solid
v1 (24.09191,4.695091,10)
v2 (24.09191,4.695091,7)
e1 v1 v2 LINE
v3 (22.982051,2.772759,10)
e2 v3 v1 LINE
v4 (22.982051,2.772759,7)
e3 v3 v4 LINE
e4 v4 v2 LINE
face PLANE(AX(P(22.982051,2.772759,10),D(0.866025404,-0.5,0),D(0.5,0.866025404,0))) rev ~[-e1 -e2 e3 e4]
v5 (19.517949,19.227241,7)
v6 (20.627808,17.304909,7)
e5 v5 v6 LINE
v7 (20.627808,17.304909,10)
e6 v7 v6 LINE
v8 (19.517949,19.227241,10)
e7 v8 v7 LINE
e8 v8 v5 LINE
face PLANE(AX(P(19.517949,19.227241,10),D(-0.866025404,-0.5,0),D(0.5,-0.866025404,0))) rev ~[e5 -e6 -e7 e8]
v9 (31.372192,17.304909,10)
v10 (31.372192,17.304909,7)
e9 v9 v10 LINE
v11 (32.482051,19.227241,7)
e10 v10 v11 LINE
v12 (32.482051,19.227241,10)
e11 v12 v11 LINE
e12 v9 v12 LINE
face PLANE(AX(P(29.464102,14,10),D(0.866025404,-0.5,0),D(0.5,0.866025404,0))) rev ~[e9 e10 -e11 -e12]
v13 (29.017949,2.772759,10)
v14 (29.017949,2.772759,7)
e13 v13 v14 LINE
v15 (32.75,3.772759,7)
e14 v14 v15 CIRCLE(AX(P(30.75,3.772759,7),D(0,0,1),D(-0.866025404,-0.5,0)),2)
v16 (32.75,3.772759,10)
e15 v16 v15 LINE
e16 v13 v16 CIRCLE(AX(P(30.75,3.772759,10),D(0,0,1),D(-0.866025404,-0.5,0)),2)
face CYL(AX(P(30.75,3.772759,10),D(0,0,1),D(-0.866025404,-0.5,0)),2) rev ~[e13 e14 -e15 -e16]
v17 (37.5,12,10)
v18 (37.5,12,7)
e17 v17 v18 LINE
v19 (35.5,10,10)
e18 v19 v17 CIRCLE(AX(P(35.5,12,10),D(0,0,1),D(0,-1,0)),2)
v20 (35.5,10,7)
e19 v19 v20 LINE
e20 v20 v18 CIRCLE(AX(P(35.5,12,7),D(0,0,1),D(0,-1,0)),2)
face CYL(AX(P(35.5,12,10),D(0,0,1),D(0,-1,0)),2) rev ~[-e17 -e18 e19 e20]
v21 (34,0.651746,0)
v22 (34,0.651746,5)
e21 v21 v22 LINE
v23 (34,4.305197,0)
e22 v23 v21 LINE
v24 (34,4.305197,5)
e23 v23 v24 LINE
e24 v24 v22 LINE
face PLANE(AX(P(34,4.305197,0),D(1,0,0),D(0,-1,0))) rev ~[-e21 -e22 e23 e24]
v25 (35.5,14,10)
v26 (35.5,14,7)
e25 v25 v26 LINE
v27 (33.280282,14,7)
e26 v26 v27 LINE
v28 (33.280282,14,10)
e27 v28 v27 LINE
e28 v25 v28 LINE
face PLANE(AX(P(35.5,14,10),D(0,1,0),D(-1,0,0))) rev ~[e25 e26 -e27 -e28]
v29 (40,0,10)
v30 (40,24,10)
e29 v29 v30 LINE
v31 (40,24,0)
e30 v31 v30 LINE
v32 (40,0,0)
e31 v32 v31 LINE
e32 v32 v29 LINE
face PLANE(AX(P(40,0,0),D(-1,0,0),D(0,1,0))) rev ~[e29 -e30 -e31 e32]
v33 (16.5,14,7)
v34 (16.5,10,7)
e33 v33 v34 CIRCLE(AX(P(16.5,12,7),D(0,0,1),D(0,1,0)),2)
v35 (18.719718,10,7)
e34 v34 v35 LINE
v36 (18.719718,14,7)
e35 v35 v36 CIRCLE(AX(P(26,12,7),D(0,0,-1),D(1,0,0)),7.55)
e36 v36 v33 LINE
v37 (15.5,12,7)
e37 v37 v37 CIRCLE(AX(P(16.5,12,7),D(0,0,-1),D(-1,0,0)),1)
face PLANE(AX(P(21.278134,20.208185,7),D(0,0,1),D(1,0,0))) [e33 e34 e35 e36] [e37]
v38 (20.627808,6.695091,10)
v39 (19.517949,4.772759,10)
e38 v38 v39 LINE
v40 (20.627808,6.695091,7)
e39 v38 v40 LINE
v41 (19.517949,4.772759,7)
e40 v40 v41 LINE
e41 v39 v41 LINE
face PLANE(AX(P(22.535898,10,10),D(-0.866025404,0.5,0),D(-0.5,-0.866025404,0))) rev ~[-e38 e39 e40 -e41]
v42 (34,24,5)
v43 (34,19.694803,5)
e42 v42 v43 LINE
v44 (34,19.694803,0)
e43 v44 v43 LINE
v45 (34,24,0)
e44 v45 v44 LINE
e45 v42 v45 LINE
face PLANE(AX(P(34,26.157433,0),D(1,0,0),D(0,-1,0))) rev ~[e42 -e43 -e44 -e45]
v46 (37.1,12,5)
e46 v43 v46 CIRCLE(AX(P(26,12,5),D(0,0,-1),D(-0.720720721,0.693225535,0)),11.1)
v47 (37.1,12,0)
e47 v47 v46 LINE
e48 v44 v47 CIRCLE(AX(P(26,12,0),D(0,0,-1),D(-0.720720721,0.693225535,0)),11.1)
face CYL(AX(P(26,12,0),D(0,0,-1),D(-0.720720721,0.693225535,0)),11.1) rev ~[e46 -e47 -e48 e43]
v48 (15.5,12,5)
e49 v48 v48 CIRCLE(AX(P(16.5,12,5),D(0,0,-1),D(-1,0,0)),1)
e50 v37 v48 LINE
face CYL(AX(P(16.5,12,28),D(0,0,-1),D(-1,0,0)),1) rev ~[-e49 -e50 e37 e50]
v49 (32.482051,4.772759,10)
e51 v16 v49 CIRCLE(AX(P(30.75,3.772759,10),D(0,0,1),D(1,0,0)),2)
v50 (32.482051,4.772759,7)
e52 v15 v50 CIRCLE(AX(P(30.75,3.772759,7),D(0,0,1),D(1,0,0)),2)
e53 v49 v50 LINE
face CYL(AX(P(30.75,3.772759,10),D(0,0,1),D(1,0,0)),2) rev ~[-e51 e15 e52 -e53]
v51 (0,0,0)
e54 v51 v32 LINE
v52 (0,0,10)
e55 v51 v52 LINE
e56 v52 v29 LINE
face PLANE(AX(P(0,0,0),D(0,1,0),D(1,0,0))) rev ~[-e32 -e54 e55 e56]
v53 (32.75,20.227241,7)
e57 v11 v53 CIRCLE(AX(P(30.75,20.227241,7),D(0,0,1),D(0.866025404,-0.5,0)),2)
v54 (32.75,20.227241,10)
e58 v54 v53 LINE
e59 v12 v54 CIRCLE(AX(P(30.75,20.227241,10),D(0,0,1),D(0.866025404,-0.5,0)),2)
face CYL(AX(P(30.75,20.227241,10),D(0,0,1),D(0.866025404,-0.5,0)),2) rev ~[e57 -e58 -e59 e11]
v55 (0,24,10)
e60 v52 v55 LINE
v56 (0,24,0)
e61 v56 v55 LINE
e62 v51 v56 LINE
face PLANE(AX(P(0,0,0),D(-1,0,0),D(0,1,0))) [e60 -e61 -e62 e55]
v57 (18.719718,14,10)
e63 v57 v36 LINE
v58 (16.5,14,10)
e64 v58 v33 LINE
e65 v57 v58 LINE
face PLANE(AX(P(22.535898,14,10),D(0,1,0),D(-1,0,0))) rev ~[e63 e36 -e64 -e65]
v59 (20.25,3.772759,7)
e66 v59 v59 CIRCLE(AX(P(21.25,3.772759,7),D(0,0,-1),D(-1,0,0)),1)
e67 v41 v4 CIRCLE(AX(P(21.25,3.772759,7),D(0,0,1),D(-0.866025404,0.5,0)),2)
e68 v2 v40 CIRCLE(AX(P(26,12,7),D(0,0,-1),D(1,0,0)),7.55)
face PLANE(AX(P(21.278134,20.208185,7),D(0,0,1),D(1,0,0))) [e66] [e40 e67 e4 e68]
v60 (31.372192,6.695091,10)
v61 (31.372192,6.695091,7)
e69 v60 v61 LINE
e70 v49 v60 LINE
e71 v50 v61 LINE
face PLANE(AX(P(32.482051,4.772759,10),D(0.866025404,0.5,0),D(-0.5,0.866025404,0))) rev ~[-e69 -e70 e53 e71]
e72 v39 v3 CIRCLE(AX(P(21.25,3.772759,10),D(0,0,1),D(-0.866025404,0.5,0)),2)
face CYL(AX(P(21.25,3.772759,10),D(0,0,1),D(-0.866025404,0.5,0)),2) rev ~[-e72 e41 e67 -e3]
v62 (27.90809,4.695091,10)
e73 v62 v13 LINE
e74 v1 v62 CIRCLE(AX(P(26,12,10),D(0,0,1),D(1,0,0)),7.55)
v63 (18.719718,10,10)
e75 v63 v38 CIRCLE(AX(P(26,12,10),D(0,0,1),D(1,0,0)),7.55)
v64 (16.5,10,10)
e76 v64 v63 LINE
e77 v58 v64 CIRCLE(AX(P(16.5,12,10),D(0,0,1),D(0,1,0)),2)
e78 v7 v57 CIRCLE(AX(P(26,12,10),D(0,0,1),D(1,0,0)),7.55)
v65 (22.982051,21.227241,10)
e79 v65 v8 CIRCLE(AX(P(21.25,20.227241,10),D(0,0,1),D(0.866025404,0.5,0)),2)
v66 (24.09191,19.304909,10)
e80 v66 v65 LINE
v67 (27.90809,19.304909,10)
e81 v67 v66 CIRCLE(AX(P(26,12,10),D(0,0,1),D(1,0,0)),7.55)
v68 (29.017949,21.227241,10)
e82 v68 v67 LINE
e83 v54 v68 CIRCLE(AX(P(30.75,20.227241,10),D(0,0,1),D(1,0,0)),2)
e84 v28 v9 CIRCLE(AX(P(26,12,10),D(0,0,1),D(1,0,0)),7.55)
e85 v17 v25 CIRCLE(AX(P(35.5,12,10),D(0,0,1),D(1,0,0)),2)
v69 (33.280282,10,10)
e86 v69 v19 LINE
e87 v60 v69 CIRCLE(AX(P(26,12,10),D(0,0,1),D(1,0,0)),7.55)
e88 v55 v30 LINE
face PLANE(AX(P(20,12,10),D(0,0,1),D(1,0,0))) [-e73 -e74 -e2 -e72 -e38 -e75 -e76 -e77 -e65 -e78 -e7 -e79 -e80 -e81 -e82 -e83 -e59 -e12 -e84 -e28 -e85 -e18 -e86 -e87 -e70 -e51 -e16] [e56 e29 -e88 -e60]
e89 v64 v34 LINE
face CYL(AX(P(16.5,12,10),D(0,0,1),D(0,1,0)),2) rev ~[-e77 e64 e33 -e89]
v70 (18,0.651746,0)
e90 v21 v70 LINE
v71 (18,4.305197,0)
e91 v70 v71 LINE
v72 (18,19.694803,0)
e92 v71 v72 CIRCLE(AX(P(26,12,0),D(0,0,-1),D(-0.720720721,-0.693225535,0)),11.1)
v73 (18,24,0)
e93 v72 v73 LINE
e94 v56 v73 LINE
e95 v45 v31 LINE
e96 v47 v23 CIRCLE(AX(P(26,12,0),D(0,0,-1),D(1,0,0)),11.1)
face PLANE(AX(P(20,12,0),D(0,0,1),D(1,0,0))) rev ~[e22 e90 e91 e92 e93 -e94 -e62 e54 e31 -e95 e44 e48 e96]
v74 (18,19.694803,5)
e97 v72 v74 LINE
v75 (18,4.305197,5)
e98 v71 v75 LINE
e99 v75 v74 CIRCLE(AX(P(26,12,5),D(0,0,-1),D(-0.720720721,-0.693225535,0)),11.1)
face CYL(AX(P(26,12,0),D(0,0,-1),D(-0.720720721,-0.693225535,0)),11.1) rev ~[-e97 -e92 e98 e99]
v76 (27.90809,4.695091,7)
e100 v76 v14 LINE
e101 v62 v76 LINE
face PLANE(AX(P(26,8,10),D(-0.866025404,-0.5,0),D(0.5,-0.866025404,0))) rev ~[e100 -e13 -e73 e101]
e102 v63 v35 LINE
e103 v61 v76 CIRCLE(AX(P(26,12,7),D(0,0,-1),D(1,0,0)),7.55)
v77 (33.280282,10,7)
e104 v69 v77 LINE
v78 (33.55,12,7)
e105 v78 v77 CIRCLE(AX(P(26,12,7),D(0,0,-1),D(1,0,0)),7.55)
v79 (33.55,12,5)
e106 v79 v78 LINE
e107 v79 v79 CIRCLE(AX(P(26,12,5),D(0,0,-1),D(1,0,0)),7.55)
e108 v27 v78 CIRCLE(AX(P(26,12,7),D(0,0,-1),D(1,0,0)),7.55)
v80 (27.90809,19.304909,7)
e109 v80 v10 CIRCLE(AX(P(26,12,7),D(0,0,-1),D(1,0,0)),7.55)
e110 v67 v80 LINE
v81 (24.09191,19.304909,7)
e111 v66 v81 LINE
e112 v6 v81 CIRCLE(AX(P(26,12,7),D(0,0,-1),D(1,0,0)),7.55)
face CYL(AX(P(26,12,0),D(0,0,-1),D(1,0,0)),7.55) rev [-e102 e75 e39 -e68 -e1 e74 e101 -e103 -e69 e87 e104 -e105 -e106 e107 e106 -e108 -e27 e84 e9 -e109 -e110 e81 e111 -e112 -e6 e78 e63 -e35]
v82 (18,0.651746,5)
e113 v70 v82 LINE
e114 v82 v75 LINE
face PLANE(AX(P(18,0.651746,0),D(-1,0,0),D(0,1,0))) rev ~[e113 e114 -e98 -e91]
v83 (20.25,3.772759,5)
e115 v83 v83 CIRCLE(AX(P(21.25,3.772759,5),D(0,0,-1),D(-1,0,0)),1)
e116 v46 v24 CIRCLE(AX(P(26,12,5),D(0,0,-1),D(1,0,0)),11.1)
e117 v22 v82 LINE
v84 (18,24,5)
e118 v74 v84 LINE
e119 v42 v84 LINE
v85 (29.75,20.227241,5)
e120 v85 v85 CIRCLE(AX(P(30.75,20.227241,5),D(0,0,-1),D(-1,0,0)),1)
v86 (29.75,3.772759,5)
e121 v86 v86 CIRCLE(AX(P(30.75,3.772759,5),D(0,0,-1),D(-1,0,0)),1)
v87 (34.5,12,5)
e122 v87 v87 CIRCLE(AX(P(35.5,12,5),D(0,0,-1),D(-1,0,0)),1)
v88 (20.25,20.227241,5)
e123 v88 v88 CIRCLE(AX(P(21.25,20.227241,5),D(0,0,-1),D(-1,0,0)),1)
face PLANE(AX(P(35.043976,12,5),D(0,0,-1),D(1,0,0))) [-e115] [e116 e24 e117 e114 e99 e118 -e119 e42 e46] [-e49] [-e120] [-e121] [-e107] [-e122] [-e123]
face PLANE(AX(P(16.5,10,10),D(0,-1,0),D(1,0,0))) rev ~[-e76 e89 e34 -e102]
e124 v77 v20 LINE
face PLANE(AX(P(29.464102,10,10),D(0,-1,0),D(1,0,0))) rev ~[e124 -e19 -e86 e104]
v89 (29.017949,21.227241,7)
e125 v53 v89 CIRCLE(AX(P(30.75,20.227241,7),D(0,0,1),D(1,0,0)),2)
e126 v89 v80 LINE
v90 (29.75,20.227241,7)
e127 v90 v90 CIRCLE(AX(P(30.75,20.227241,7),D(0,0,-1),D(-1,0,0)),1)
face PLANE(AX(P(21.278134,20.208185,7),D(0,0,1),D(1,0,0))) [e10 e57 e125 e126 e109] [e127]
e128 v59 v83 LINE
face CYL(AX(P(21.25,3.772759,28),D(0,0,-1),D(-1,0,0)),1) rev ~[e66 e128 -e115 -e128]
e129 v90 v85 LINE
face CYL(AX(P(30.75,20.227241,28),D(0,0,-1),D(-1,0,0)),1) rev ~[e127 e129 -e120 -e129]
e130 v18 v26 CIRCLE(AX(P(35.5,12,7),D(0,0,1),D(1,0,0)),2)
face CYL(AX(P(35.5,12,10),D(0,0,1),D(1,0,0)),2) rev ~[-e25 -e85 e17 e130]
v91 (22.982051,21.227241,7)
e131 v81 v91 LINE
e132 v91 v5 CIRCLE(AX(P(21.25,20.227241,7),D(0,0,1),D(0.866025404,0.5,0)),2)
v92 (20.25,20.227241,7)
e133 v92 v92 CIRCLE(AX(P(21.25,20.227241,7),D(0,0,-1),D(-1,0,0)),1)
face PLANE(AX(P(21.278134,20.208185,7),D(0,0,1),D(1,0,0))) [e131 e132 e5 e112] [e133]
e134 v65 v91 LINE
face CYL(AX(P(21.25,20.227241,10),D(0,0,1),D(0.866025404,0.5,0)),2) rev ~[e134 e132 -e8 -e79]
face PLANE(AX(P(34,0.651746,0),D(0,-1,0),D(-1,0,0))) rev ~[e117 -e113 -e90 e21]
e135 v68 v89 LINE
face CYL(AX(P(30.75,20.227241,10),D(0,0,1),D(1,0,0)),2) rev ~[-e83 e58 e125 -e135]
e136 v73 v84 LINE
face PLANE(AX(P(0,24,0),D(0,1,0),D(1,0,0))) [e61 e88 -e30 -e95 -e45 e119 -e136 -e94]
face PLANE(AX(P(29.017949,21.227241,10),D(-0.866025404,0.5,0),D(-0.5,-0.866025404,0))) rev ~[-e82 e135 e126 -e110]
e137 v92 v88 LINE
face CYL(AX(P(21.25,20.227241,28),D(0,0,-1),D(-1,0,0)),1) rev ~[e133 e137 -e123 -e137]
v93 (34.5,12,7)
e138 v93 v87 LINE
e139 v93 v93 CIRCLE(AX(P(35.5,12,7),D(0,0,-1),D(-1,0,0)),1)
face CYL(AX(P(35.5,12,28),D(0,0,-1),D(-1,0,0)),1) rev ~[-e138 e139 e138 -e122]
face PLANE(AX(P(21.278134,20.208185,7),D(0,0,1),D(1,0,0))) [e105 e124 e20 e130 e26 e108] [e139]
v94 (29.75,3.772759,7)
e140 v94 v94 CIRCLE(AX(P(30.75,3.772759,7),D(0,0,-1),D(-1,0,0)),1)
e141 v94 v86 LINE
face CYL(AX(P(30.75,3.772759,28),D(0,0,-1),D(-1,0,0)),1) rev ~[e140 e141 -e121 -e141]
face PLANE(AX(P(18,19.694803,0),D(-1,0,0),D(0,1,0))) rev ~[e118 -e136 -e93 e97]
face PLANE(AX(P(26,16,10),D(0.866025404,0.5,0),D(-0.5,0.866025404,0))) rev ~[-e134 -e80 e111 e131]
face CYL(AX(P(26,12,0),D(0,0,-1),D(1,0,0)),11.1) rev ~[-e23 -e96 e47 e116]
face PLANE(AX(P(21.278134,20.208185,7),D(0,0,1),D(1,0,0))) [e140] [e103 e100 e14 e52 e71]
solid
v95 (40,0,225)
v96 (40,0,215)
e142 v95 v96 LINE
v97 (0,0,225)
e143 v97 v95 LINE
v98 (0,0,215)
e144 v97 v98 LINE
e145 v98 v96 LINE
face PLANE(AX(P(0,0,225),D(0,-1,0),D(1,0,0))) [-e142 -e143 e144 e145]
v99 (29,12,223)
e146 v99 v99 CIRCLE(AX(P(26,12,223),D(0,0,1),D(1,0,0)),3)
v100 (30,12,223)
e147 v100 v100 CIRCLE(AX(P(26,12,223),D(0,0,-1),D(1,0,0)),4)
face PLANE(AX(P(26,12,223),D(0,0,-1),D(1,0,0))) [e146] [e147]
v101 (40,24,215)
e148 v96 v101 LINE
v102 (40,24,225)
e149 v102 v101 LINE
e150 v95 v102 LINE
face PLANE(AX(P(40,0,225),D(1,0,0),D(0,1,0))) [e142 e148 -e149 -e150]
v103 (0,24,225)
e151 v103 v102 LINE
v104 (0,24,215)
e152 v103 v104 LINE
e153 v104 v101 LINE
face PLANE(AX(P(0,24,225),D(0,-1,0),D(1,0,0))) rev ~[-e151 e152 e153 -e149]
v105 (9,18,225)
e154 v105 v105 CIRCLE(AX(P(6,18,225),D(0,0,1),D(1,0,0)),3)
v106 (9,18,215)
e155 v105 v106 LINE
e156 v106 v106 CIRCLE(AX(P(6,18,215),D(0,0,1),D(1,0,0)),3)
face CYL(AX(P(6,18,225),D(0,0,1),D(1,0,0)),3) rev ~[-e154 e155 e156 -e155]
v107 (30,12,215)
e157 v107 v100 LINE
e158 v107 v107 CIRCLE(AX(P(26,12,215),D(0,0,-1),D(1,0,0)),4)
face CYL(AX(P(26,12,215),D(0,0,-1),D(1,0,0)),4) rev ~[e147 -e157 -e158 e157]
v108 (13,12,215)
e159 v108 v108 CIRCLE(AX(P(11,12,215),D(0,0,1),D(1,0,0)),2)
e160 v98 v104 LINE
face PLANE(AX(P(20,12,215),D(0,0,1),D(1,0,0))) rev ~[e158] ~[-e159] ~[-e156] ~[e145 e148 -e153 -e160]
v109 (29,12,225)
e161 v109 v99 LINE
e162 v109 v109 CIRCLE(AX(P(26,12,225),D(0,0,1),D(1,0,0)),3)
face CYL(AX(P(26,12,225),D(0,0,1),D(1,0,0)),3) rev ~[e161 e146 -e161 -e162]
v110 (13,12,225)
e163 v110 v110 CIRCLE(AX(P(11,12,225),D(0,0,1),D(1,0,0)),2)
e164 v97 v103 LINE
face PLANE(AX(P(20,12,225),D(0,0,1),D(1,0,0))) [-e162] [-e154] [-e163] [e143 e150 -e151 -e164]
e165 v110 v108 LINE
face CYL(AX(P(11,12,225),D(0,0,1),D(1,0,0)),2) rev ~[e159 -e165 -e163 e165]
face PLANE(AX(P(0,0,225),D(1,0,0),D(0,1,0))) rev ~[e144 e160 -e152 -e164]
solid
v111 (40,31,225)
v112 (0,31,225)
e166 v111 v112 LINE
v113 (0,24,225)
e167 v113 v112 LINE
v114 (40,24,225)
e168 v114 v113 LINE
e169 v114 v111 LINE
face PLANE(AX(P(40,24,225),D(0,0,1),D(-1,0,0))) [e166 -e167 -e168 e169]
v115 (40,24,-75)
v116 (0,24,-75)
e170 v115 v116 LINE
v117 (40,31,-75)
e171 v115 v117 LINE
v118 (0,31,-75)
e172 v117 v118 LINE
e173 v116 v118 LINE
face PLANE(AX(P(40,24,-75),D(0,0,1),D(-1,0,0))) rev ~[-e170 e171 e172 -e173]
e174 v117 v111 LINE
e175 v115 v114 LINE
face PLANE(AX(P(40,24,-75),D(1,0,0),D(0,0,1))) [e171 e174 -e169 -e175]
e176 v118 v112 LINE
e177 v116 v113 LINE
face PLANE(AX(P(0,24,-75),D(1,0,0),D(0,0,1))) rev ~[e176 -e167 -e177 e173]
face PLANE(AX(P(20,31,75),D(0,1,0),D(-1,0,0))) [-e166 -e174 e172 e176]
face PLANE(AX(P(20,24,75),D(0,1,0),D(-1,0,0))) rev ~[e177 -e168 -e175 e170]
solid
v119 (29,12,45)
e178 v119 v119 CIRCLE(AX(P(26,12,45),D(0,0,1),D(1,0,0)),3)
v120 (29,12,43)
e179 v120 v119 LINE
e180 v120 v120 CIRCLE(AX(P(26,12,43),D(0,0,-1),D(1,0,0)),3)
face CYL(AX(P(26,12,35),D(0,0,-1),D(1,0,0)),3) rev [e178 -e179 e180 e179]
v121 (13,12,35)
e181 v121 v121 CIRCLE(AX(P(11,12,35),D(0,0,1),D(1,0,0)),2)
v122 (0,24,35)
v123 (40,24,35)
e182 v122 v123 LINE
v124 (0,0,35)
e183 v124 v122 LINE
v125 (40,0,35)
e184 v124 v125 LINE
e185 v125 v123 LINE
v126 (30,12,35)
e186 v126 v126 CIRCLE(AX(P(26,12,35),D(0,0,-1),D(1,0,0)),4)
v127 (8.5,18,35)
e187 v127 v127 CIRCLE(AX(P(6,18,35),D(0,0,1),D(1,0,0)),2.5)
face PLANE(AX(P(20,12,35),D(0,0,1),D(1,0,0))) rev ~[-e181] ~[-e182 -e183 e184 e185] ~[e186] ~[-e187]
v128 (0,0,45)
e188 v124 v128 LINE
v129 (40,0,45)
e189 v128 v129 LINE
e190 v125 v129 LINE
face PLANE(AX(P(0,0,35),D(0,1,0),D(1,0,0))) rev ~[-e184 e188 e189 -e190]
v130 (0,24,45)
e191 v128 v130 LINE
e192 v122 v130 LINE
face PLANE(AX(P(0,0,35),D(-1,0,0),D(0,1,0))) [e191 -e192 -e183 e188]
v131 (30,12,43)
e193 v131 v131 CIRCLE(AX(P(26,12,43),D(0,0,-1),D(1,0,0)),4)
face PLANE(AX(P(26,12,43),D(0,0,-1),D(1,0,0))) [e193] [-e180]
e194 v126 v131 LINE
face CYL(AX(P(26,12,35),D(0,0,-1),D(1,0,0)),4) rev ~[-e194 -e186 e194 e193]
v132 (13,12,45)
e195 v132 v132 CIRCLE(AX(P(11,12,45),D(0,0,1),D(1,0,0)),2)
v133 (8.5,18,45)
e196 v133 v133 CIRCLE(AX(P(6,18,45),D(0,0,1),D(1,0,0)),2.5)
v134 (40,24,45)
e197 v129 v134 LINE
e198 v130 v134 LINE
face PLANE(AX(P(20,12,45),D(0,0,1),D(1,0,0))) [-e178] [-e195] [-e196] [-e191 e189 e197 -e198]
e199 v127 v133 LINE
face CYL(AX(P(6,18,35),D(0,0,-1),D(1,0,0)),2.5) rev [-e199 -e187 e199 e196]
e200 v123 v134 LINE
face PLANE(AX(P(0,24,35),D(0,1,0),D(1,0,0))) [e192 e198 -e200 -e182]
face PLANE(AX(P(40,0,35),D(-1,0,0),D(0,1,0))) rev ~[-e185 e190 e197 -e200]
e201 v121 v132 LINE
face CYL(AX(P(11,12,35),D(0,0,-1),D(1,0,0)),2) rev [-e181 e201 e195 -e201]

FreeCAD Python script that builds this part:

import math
import FreeCAD as App
import Part
import Sketcher
from FreeCAD import Vector
Q = App.Units.Quantity

doc = App.newDocument("Part")
body = doc.addObject("PartDesign::Body", "Body")

# Sketch on XY plane
sketch1 = body.newObject("Sketcher::SketchObject", "Sketch")
sketch1.AttachmentSupport = (doc.getObject("XY_Plane"), [""])
sketch1.MapMode = "FlatFace"
sketch1.addGeometry(Part.LineSegment(Vector(0, 24, 0), Vector(0, 0, 0)), False)
sketch1.addGeometry(Part.LineSegment(Vector(0, 0, 0), Vector(40, 0, 0)), False)
sketch1.addGeometry(Part.LineSegment(Vector(40, 0, 0), Vector(40, 24, 0)), False)
sketch1.addGeometry(Part.LineSegment(Vector(40, 24, 0), Vector(0, 24, 0)), False)
sketch1.addGeometry(Part.Circle(Vector(26, 12, 0), Vector(0, 0, 1), 8), False)
sketch1.addConstraint(Sketcher.Constraint("Coincident", 0, 2, 1, 1))
sketch1.addConstraint(Sketcher.Constraint("Coincident", 1, 2, 2, 1))
sketch1.addConstraint(Sketcher.Constraint("Coincident", 2, 2, 3, 1))
sketch1.addConstraint(Sketcher.Constraint("Coincident", 3, 2, 0, 1))
sketch1.addConstraint(Sketcher.Constraint("Vertical", 0))
sketch1.addConstraint(Sketcher.Constraint("Horizontal", 1))
sketch1.addConstraint(Sketcher.Constraint("Vertical", 2))
sketch1.addConstraint(Sketcher.Constraint("Horizontal", 3))
sketch1.addConstraint(Sketcher.Constraint("Coincident", 0, 2, -1, 1))
sketch1.addConstraint(Sketcher.Constraint("Diameter", 4, Q("15.1 mm")))
sketch1.addConstraint(Sketcher.Constraint("DistanceX", 1, 1, 1, 2, Q("40 mm")))
sketch1.addConstraint(Sketcher.Constraint("DistanceY", 0, 2, 0, 1, Q("24 mm")))
sketch1.addConstraint(Sketcher.Constraint("DistanceX", -1, 1, 4, 3, Q("26 mm")))
sketch1.addConstraint(Sketcher.Constraint("DistanceY", -1, 1, 4, 3, Q("12 mm")))
pad1 = body.newObject("PartDesign::Pad", "Pad")
pad1.Profile = sketch1
pad1.Length = 10

# Sketch on XY plane
sketch2 = body.newObject("Sketcher::SketchObject", "Sketch001")
sketch2.AttachmentSupport = (doc.getObject("XY_Plane"), [""])
sketch2.MapMode = "FlatFace"
sketch2.AttachmentOffset = App.Placement(Vector(0, 0, 10), App.Rotation())
sketch2.addGeometry(Part.Circle(Vector(21.2, 20.2, 0), Vector(0, 0, 1), 1), False)
sketch2.addGeometry(Part.Circle(Vector(16.5, 12, 0), Vector(0, 0, 1), 1), False)
sketch2.addGeometry(Part.Circle(Vector(21.2, 3.8, 0), Vector(0, 0, 1), 1), False)
sketch2.addGeometry(Part.Circle(Vector(30.8, 3.8, 0), Vector(0, 0, 1), 1), False)
sketch2.addGeometry(Part.Circle(Vector(35.5, 12, 0), Vector(0, 0, 1), 1), False)
sketch2.addGeometry(Part.Circle(Vector(30.8, 20.2, 0), Vector(0, 0, 1), 1), False)
sketch2.addConstraint(Sketcher.Constraint("Equal", 0, 1))
sketch2.addConstraint(Sketcher.Constraint("Equal", 1, 2))
sketch2.addConstraint(Sketcher.Constraint("Equal", 2, 3))
sketch2.addConstraint(Sketcher.Constraint("Equal", 3, 4))
sketch2.addConstraint(Sketcher.Constraint("Equal", 4, 5))
sketch2.addConstraint(Sketcher.Constraint("Horizontal", 2, 3, 3, 3))
sketch2.addConstraint(Sketcher.Constraint("Horizontal", 1, 3, 4, 3))
sketch2.addConstraint(Sketcher.Constraint("Horizontal", 0, 3, 5, 3))
sketch2.addConstraint(Sketcher.Constraint("Vertical", 0, 3, 2, 3))
sketch2.addConstraint(Sketcher.Constraint("Vertical", 3, 3, 5, 3))
sketch2.addConstraint(Sketcher.Constraint("Diameter", 0, Q("2 mm")))
sketch2.addConstraint(Sketcher.Constraint("DistanceY", -1, 1, 1, 3, Q("12 mm")))
sketch2.addConstraint(Sketcher.Constraint("DistanceX", 1, 3, 4, 3, Q("19 mm")))
sketch2.addConstraint(Sketcher.Constraint("DistanceX", -1, 1, 1, 3, Q("16.5 mm")))
sketch2.addConstraint(Sketcher.Constraint("DistanceX", 2, 3, 3, 3, Q("9.5 mm")))
sketch2.addConstraint(Sketcher.Constraint("DistanceX", -1, 1, 0, 3, Q("21.25 mm")))
sketch2.addConstraint(Sketcher.Constraint("DistanceY", -1, 1, 0, 3, Q("20.227241 mm")))
sketch2.addConstraint(Sketcher.Constraint("DistanceY", -1, 1, 2, 3, Q("3.772759 mm")))
doc.recompute()
hole = body.newObject("PartDesign::Hole", "Hole")
hole.Profile = sketch2
hole.ThreadType = "None"
hole.Diameter = 2
hole.DepthType = "Dimension"
hole.Depth = 18
hole.DrillPoint = "Angled"
hole.DrillPointAngle = 118

# Sketch on XY plane
sketch3 = body.newObject("Sketcher::SketchObject", "Sketch002")
sketch3.AttachmentSupport = (doc.getObject("XY_Plane"), [""])
sketch3.MapMode = "FlatFace"
sketch3.AttachmentOffset = App.Placement(Vector(0, 0, 10), App.Rotation())
sketch3.addGeometry(Part.LineSegment(Vector(23, 2.8, 0), Vector(26, 8, 0)), False)
sketch3.addGeometry(Part.LineSegment(Vector(26, 8, 0), Vector(29, 2.8, 0)), False)
sketch3.addGeometry(Part.ArcOfCircle(Part.Circle(Vector(30.8, 3.8, 0), Vector(0, 0, 1), 2), math.radians(-150), math.radians(0)), False)
sketch3.addGeometry(Part.ArcOfCircle(Part.Circle(Vector(30.8, 3.8, 0), Vector(0, 0, 1), 2), math.radians(0), math.radians(30)), False)
sketch3.addGeometry(Part.LineSegment(Vector(32.5, 4.8, 0), Vector(29.5, 10, 0)), False)
sketch3.addGeometry(Part.LineSegment(Vector(29.5, 10, 0), Vector(35.5, 10, 0)), False)
sketch3.addGeometry(Part.ArcOfCircle(Part.Circle(Vector(35.5, 12, 0), Vector(0, 0, 1), 2), math.radians(-90), math.radians(0)), False)
sketch3.addGeometry(Part.ArcOfCircle(Part.Circle(Vector(35.5, 12, 0), Vector(0, 0, 1), 2), math.radians(0), math.radians(90)), False)
sketch3.addGeometry(Part.LineSegment(Vector(35.5, 14, 0), Vector(29.5, 14, 0)), False)
sketch3.addGeometry(Part.LineSegment(Vector(29.5, 14, 0), Vector(32.5, 19.2, 0)), False)
sketch3.addGeometry(Part.ArcOfCircle(Part.Circle(Vector(30.8, 20.2, 0), Vector(0, 0, 1), 2), math.radians(-30), math.radians(0)), False)
sketch3.addGeometry(Part.ArcOfCircle(Part.Circle(Vector(30.8, 20.2, 0), Vector(0, 0, 1), 2), math.radians(0), math.radians(150)), False)
sketch3.addGeometry(Part.LineSegment(Vector(29, 21.2, 0), Vector(26, 16, 0)), False)
sketch3.addGeometry(Part.LineSegment(Vector(26, 16, 0), Vector(23, 21.2, 0)), False)
sketch3.addGeometry(Part.ArcOfCircle(Part.Circle(Vector(21.2, 20.2, 0), Vector(0, 0, 1), 2), math.radians(30), math.radians(210)), False)
sketch3.addGeometry(Part.LineSegment(Vector(19.5, 19.2, 0), Vector(22.5, 14, 0)), False)
sketch3.addGeometry(Part.LineSegment(Vector(22.5, 14, 0), Vector(16.5, 14, 0)), False)
sketch3.addGeometry(Part.ArcOfCircle(Part.Circle(Vector(16.5, 12, 0), Vector(0, 0, 1), 2), math.radians(90), math.radians(270)), False)
sketch3.addGeometry(Part.LineSegment(Vector(16.5, 10, 0), Vector(22.5, 10, 0)), False)
sketch3.addGeometry(Part.LineSegment(Vector(22.5, 10, 0), Vector(19.5, 4.8, 0)), False)
sketch3.addGeometry(Part.ArcOfCircle(Part.Circle(Vector(21.2, 3.8, 0), Vector(0, 0, 1), 2), math.radians(150), math.radians(330)), False)
sketch3.addGeometry(Part.LineSegment(Vector(28.3, 12, 0), Vector(27.2, 10, 0)), False)
sketch3.addGeometry(Part.LineSegment(Vector(27.2, 10, 0), Vector(24.8, 10, 0)), False)
sketch3.addGeometry(Part.LineSegment(Vector(24.8, 10, 0), Vector(23.7, 12, 0)), False)
sketch3.addGeometry(Part.LineSegment(Vector(23.7, 12, 0), Vector(24.8, 14, 0)), False)
sketch3.addGeometry(Part.LineSegment(Vector(24.8, 14, 0), Vector(27.2, 14, 0)), False)
sketch3.addGeometry(Part.LineSegment(Vector(27.2, 14, 0), Vector(28.3, 12, 0)), False)
sketch3.addConstraint(Sketcher.Constraint("Coincident", 0, 2, 1, 1))
sketch3.addConstraint(Sketcher.Constraint("Tangent", 1, 2, 2, 1))
sketch3.addConstraint(Sketcher.Constraint("Tangent", 2, 2, 3, 1))
sketch3.addConstraint(Sketcher.Constraint("Tangent", 3, 2, 4, 1))
sketch3.addConstraint(Sketcher.Constraint("Coincident", 4, 2, 5, 1))
sketch3.addConstraint(Sketcher.Constraint("Tangent", 5, 2, 6, 1))
sketch3.addConstraint(Sketcher.Constraint("Tangent", 6, 2, 7, 1))
sketch3.addConstraint(Sketcher.Constraint("Tangent", 7, 2, 8, 1))
sketch3.addConstraint(Sketcher.Constraint("Coincident", 8, 2, 9, 1))
sketch3.addConstraint(Sketcher.Constraint("Tangent", 9, 2, 10, 1))
sketch3.addConstraint(Sketcher.Constraint("Tangent", 10, 2, 11, 1))
sketch3.addConstraint(Sketcher.Constraint("Tangent", 11, 2, 12, 1))
sketch3.addConstraint(Sketcher.Constraint("Coincident", 12, 2, 13, 1))
sketch3.addConstraint(Sketcher.Constraint("Tangent", 13, 2, 14, 1))
sketch3.addConstraint(Sketcher.Constraint("Tangent", 14, 2, 15, 1))
sketch3.addConstraint(Sketcher.Constraint("Coincident", 15, 2, 16, 1))
sketch3.addConstraint(Sketcher.Constraint("Tangent", 16, 2, 17, 1))
sketch3.addConstraint(Sketcher.Constraint("Tangent", 17, 2, 18, 1))
sketch3.addConstraint(Sketcher.Constraint("Coincident", 18, 2, 19, 1))
sketch3.addConstraint(Sketcher.Constraint("Tangent", 19, 2, 20, 1))
sketch3.addConstraint(Sketcher.Constraint("Tangent", 20, 2, 0, 1))
sketch3.addConstraint(Sketcher.Constraint("Coincident", 21, 2, 22, 1))
sketch3.addConstraint(Sketcher.Constraint("Coincident", 22, 2, 23, 1))
sketch3.addConstraint(Sketcher.Constraint("Coincident", 23, 2, 24, 1))
sketch3.addConstraint(Sketcher.Constraint("Coincident", 24, 2, 25, 1))
sketch3.addConstraint(Sketcher.Constraint("Coincident", 25, 2, 26, 1))
sketch3.addConstraint(Sketcher.Constraint("Coincident", 26, 2, 21, 1))
sketch3.addConstraint(Sketcher.Constraint("Horizontal", 5))
sketch3.addConstraint(Sketcher.Constraint("Horizontal", 8))
sketch3.addConstraint(Sketcher.Constraint("Horizontal", 16))
sketch3.addConstraint(Sketcher.Constraint("Horizontal", 18))
sketch3.addConstraint(Sketcher.Constraint("Horizontal", 22))
sketch3.addConstraint(Sketcher.Constraint("Horizontal", 25))
sketch3.addConstraint(Sketcher.Constraint("Equal", 2, 3))
sketch3.addConstraint(Sketcher.Constraint("Equal", 3, 6))
sketch3.addConstraint(Sketcher.Constraint("Equal", 6, 7))
sketch3.addConstraint(Sketcher.Constraint("Equal", 7, 10))
sketch3.addConstraint(Sketcher.Constraint("Equal", 10, 11))
sketch3.addConstraint(Sketcher.Constraint("Equal", 11, 14))
sketch3.addConstraint(Sketcher.Constraint("Equal", 14, 17))
sketch3.addConstraint(Sketcher.Constraint("Equal", 17, 20))
sketch3.addConstraint(Sketcher.Constraint("Parallel", 1, 4))
sketch3.addConstraint(Sketcher.Constraint("Parallel", 0, 9))
sketch3.addConstraint(Sketcher.Constraint("Parallel", 9, 12))
sketch3.addConstraint(Sketcher.Constraint("Parallel", 4, 13))
sketch3.addConstraint(Sketcher.Constraint("Parallel", 13, 15))
sketch3.addConstraint(Sketcher.Constraint("Parallel", 12, 19))
sketch3.addConstraint(Sketcher.Constraint("Parallel", 19, 21))
sketch3.addConstraint(Sketcher.Constraint("Parallel", 15, 23))
sketch3.addConstraint(Sketcher.Constraint("Parallel", 21, 24))
sketch3.addConstraint(Sketcher.Constraint("Parallel", 23, 26))
sketch3.addConstraint(Sketcher.Constraint("Horizontal", 11, 3, 14, 3))
sketch3.addConstraint(Sketcher.Constraint("Horizontal", 7, 3, 17, 3))
sketch3.addConstraint(Sketcher.Constraint("Horizontal", 3, 3, 20, 3))
sketch3.addConstraint(Sketcher.Constraint("Horizontal", 20, 3, 2, 2))
sketch3.addConstraint(Sketcher.Constraint("Horizontal", 17, 3, 6, 2))
sketch3.addConstraint(Sketcher.Constraint("Horizontal", 14, 3, 10, 2))
sketch3.addConstraint(Sketcher.Constraint("Horizontal", 11, 2, 13, 2))
sketch3.addConstraint(Sketcher.Constraint("Horizontal", 18, 2, 21, 2))
sketch3.addConstraint(Sketcher.Constraint("Horizontal", 6, 2, 23, 2))
sketch3.addConstraint(Sketcher.Constraint("Horizontal", 16, 2, 24, 2))
sketch3.addConstraint(Sketcher.Constraint("Horizontal", 23, 2, 26, 2))
sketch3.addConstraint(Sketcher.Constraint("Vertical", 3, 3, 10, 3))
sketch3.addConstraint(Sketcher.Constraint("Vertical", 14, 3, 20, 3))
sketch3.addConstraint(Sketcher.Constraint("Vertical", 4, 2, 8, 2))
sketch3.addConstraint(Sketcher.Constraint("Equal", 8, 16))
sketch3.addConstraint(Sketcher.Constraint("Equal", 1, 4))
sketch3.addConstraint(Sketcher.Constraint("Radius", 2, Q("2 mm")))
sketch3.addConstraint(Sketcher.Constraint("Angle", 0, Q("60 deg")))
sketch3.addConstraint(Sketcher.Constraint("DistanceY", -1, 1, 6, 3, Q("12 mm")))
sketch3.addConstraint(Sketcher.Constraint("DistanceX", -1, 1, 0, 2, Q("26 mm")))
sketch3.addConstraint(Sketcher.Constraint("DistanceX", -1, 1, 6, 3, Q("35.5 mm")))
sketch3.addConstraint(Sketcher.Constraint("DistanceX", 14, 3, 11, 3, Q("9.5 mm")))
sketch3.addConstraint(Sketcher.Constraint("DistanceX", 22, 2, 22, 1, Q("2.309401 mm")))
sketch3.addConstraint(Sketcher.Constraint("DistanceX", -1, 1, 21, 2, Q("27.154701 mm")))
pocket1 = body.newObject("PartDesign::Pocket", "Pocket")
pocket1.Profile = sketch3
pocket1.Length = 3

# Sketch on XY plane
sketch4 = body.newObject("Sketcher::SketchObject", "Sketch003")
sketch4.AttachmentSupport = (doc.getObject("XY_Plane"), [""])
sketch4.MapMode = "FlatFace"
sketch4.addGeometry(Part.ArcOfCircle(Part.Circle(Vector(26, 12, 0), Vector(0, 0, 1), 11.1), math.radians(-44), math.radians(0)), False)
sketch4.addGeometry(Part.LineSegment(Vector(34, 4.3, 0), Vector(34, 0.7, 0)), False)
sketch4.addGeometry(Part.LineSegment(Vector(34, 0.7, 0), Vector(18, 0.7, 0)), False)
sketch4.addGeometry(Part.LineSegment(Vector(18, 0.7, 0), Vector(18, 4.3, 0)), False)
sketch4.addGeometry(Part.ArcOfCircle(Part.Circle(Vector(26, 12, 0), Vector(0, 0, 1), 11.1), math.radians(136), math.radians(224)), False)
sketch4.addGeometry(Part.LineSegment(Vector(18, 19.7, 0), Vector(18, 26.2, 0)), False)
sketch4.addGeometry(Part.LineSegment(Vector(18, 26.2, 0), Vector(34, 26.2, 0)), False)
sketch4.addGeometry(Part.LineSegment(Vector(34, 26.2, 0), Vector(34, 19.7, 0)), False)
sketch4.addGeometry(Part.ArcOfCircle(Part.Circle(Vector(26, 12, 0), Vector(0, 0, 1), 11.1), math.radians(0), math.radians(44)), False)
sketch4.addConstraint(Sketcher.Constraint("Coincident", 0, 1, 1, 1))
sketch4.addConstraint(Sketcher.Constraint("Coincident", 1, 2, 2, 1))
sketch4.addConstraint(Sketcher.Constraint("Coincident", 2, 2, 3, 1))
sketch4.addConstraint(Sketcher.Constraint("Coincident", 3, 2, 4, 2))
sketch4.addConstraint(Sketcher.Constraint("Coincident", 4, 1, 5, 1))
sketch4.addConstraint(Sketcher.Constraint("Coincident", 5, 2, 6, 1))
sketch4.addConstraint(Sketcher.Constraint("Coincident", 6, 2, 7, 1))
sketch4.addConstraint(Sketcher.Constraint("Coincident", 7, 2, 8, 2))
sketch4.addConstraint(Sketcher.Constraint("Tangent", 8, 1, 0, 2))
sketch4.addConstraint(Sketcher.Constraint("Vertical", 1))
sketch4.addConstraint(Sketcher.Constraint("Horizontal", 2))
sketch4.addConstraint(Sketcher.Constraint("Vertical", 3))
sketch4.addConstraint(Sketcher.Constraint("Vertical", 5))
sketch4.addConstraint(Sketcher.Constraint("Horizontal", 6))
sketch4.addConstraint(Sketcher.Constraint("Vertical", 7))
sketch4.addConstraint(Sketcher.Constraint("Coincident", 4, 3, 0, 3))
sketch4.addConstraint(Sketcher.Constraint("Equal", 0, 4))
sketch4.addConstraint(Sketcher.Constraint("Equal", 4, 8))
sketch4.addConstraint(Sketcher.Constraint("Horizontal", 0, 1, 3, 2))
sketch4.addConstraint(Sketcher.Constraint("Horizontal", 4, 1, 7, 2))
sketch4.addConstraint(Sketcher.Constraint("Horizontal", 4, 3, 8, 1))
sketch4.addConstraint(Sketcher.Constraint("Vertical", 3, 2, 4, 1))
sketch4.addConstraint(Sketcher.Constraint("Radius", 0, Q("11.1 mm")))
sketch4.addConstraint(Sketcher.Constraint("DistanceX", 2, 2, 2, 1, Q("16 mm")))
sketch4.addConstraint(Sketcher.Constraint("DistanceX", -1, 1, 0, 3, Q("26 mm")))
sketch4.addConstraint(Sketcher.Constraint("DistanceY", -1, 1, 0, 3, Q("12 mm")))
sketch4.addConstraint(Sketcher.Constraint("DistanceY", 1, 2, 1, 1, Q("3.653451 mm")))
sketch4.addConstraint(Sketcher.Constraint("DistanceY", 5, 1, 5, 2, Q("6.462629 mm")))
pocket2 = body.newObject("PartDesign::Pocket", "Pocket001")
pocket2.Profile = sketch4
pocket2.Length = 5
pocket2.Reversed = True
body2 = doc.addObject("PartDesign::Body", "Body001")

# Sketch on XZ plane
sketch5 = body2.newObject("Sketcher::SketchObject", "Sketch004")
sketch5.AttachmentSupport = (doc.getObject("XZ_Plane001"), [""])
sketch5.MapMode = "FlatFace"
sketch5.AttachmentOffset = App.Placement(Vector(0, 0, -24), App.Rotation())
sketch5.addGeometry(Part.LineSegment(Vector(40, 225, 0), Vector(40, -75, 0)), False)
sketch5.addGeometry(Part.LineSegment(Vector(40, -75, 0), Vector(0, -75, 0)), False)
sketch5.addGeometry(Part.LineSegment(Vector(0, -75, 0), Vector(0, 225, 0)), False)
sketch5.addGeometry(Part.LineSegment(Vector(0, 225, 0), Vector(40, 225, 0)), False)
sketch5.addConstraint(Sketcher.Constraint("Coincident", 0, 2, 1, 1))
sketch5.addConstraint(Sketcher.Constraint("Coincident", 1, 2, 2, 1))
sketch5.addConstraint(Sketcher.Constraint("Coincident", 2, 2, 3, 1))
sketch5.addConstraint(Sketcher.Constraint("Coincident", 3, 2, 0, 1))
sketch5.addConstraint(Sketcher.Constraint("Vertical", 0))
sketch5.addConstraint(Sketcher.Constraint("Horizontal", 1))
sketch5.addConstraint(Sketcher.Constraint("Vertical", 2))
sketch5.addConstraint(Sketcher.Constraint("Horizontal", 3))
sketch5.addConstraint(Sketcher.Constraint("PointOnObject", 1, 2, -2))
sketch5.addConstraint(Sketcher.Constraint("DistanceX", 1, 2, 1, 1, Q("40 mm")))
sketch5.addConstraint(Sketcher.Constraint("DistanceY", 0, 2, 0, 1, Q("300 mm")))
sketch5.addConstraint(Sketcher.Constraint("DistanceY", 0, 2, -1, 1, Q("75 mm")))
pad2 = body2.newObject("PartDesign::Pad", "Pad001")
pad2.Profile = sketch5
pad2.Length = 7
pad2.Reversed = True
body3 = doc.addObject("PartDesign::Body", "Body002")

# Sketch on XY plane
sketch6 = body3.newObject("Sketcher::SketchObject", "Sketch005")
sketch6.AttachmentSupport = (doc.getObject("XY_Plane002"), [""])
sketch6.MapMode = "FlatFace"
sketch6.AttachmentOffset = App.Placement(Vector(0, 0, 225), App.Rotation())
sketch6.addGeometry(Part.LineSegment(Vector(0, 24, 0), Vector(0, 0, 0)), False)
sketch6.addGeometry(Part.LineSegment(Vector(0, 0, 0), Vector(40, 0, 0)), False)
sketch6.addGeometry(Part.LineSegment(Vector(40, 0, 0), Vector(40, 24, 0)), False)
sketch6.addGeometry(Part.LineSegment(Vector(40, 24, 0), Vector(0, 24, 0)), False)
sketch6.addGeometry(Part.Circle(Vector(11, 12, 0), Vector(0, 0, 1), 2), False)
sketch6.addGeometry(Part.Circle(Vector(26, 12, 0), Vector(0, 0, 1), 3), False)
sketch6.addGeometry(Part.Circle(Vector(6, 18, 0), Vector(0, 0, 1), 3), False)
sketch6.addConstraint(Sketcher.Constraint("Coincident", 0, 2, 1, 1))
sketch6.addConstraint(Sketcher.Constraint("Coincident", 1, 2, 2, 1))
sketch6.addConstraint(Sketcher.Constraint("Coincident", 2, 2, 3, 1))
sketch6.addConstraint(Sketcher.Constraint("Coincident", 3, 2, 0, 1))
sketch6.addConstraint(Sketcher.Constraint("Vertical", 0))
sketch6.addConstraint(Sketcher.Constraint("Horizontal", 1))
sketch6.addConstraint(Sketcher.Constraint("Vertical", 2))
sketch6.addConstraint(Sketcher.Constraint("Horizontal", 3))
sketch6.addConstraint(Sketcher.Constraint("Coincident", 0, 2, -1, 1))
sketch6.addConstraint(Sketcher.Constraint("Equal", 5, 6))
sketch6.addConstraint(Sketcher.Constraint("Horizontal", 4, 3, 5, 3))
sketch6.addConstraint(Sketcher.Constraint("Diameter", 4, Q("4 mm")))
sketch6.addConstraint(Sketcher.Constraint("Diameter", 5, Q("6 mm")))
sketch6.addConstraint(Sketcher.Constraint("DistanceX", 1, 1, 1, 2, Q("40 mm")))
sketch6.addConstraint(Sketcher.Constraint("DistanceY", 0, 2, 0, 1, Q("24 mm")))
sketch6.addConstraint(Sketcher.Constraint("DistanceX", -1, 1, 4, 3, Q("11 mm")))
sketch6.addConstraint(Sketcher.Constraint("DistanceY", -1, 1, 4, 3, Q("12 mm")))
sketch6.addConstraint(Sketcher.Constraint("DistanceX", -1, 1, 5, 3, Q("26 mm")))
sketch6.addConstraint(Sketcher.Constraint("DistanceX", -1, 1, 6, 3, Q("6 mm")))
sketch6.addConstraint(Sketcher.Constraint("DistanceY", -1, 1, 6, 3, Q("18 mm")))
pad3 = body3.newObject("PartDesign::Pad", "Pad002")
pad3.Profile = sketch6
pad3.Length = 10
pad3.Reversed = True

# Sketch on XY plane
sketch7 = body3.newObject("Sketcher::SketchObject", "Sketch006")
sketch7.AttachmentSupport = (doc.getObject("XY_Plane002"), [""])
sketch7.MapMode = "FlatFace"
sketch7.AttachmentOffset = App.Placement(Vector(0, 0, 215), App.Rotation())
sketch7.addGeometry(Part.Circle(Vector(26, 12, 0), Vector(0, 0, 1), 4), False)
sketch7.addConstraint(Sketcher.Constraint("Diameter", 0, Q("8 mm")))
sketch7.addConstraint(Sketcher.Constraint("DistanceX", -1, 1, 0, 3, Q("26 mm")))
sketch7.addConstraint(Sketcher.Constraint("DistanceY", -1, 1, 0, 3, Q("12 mm")))
pocket3 = body3.newObject("PartDesign::Pocket", "Pocket002")
pocket3.Profile = sketch7
pocket3.Length = 8
pocket3.Reversed = True
body4 = doc.addObject("PartDesign::Body", "Body003")

# Sketch on XY plane
sketch8 = body4.newObject("Sketcher::SketchObject", "Sketch007")
sketch8.AttachmentSupport = (doc.getObject("XY_Plane003"), [""])
sketch8.MapMode = "FlatFace"
sketch8.AttachmentOffset = App.Placement(Vector(0, 0, 35), App.Rotation())
sketch8.addGeometry(Part.LineSegment(Vector(0, 24, 0), Vector(0, 0, 0)), False)
sketch8.addGeometry(Part.LineSegment(Vector(0, 0, 0), Vector(40, 0, 0)), False)
sketch8.addGeometry(Part.LineSegment(Vector(40, 0, 0), Vector(40, 24, 0)), False)
sketch8.addGeometry(Part.LineSegment(Vector(40, 24, 0), Vector(0, 24, 0)), False)
sketch8.addGeometry(Part.Circle(Vector(11, 12, 0), Vector(0, 0, 1), 2), False)
sketch8.addGeometry(Part.Circle(Vector(26, 12, 0), Vector(0, 0, 1), 3), False)
sketch8.addGeometry(Part.Circle(Vector(6, 18, 0), Vector(0, 0, 1), 2.5), False)
sketch8.addConstraint(Sketcher.Constraint("Coincident", 0, 2, 1, 1))
sketch8.addConstraint(Sketcher.Constraint("Coincident", 1, 2, 2, 1))
sketch8.addConstraint(Sketcher.Constraint("Coincident", 2, 2, 3, 1))
sketch8.addConstraint(Sketcher.Constraint("Coincident", 3, 2, 0, 1))
sketch8.addConstraint(Sketcher.Constraint("Vertical", 0))
sketch8.addConstraint(Sketcher.Constraint("Horizontal", 1))
sketch8.addConstraint(Sketcher.Constraint("Vertical", 2))
sketch8.addConstraint(Sketcher.Constraint("Horizontal", 3))
sketch8.addConstraint(Sketcher.Constraint("Coincident", 0, 2, -1, 1))
sketch8.addConstraint(Sketcher.Constraint("Horizontal", 4, 3, 5, 3))
sketch8.addConstraint(Sketcher.Constraint("Diameter", 4, Q("4 mm")))
sketch8.addConstraint(Sketcher.Constraint("Diameter", 5, Q("6 mm")))
sketch8.addConstraint(Sketcher.Constraint("Diameter", 6, Q("5 mm")))
sketch8.addConstraint(Sketcher.Constraint("DistanceX", 1, 1, 1, 2, Q("40 mm")))
sketch8.addConstraint(Sketcher.Constraint("DistanceY", 0, 2, 0, 1, Q("24 mm")))
sketch8.addConstraint(Sketcher.Constraint("DistanceX", -1, 1, 4, 3, Q("11 mm")))
sketch8.addConstraint(Sketcher.Constraint("DistanceY", -1, 1, 4, 3, Q("12 mm")))
sketch8.addConstraint(Sketcher.Constraint("DistanceX", -1, 1, 5, 3, Q("26 mm")))
sketch8.addConstraint(Sketcher.Constraint("DistanceX", -1, 1, 6, 3, Q("6 mm")))
sketch8.addConstraint(Sketcher.Constraint("DistanceY", -1, 1, 6, 3, Q("18 mm")))
pad4 = body4.newObject("PartDesign::Pad", "Pad003")
pad4.Profile = sketch8
pad4.Length = 10

# Sketch on XY plane
sketch9 = body4.newObject("Sketcher::SketchObject", "Sketch008")
sketch9.AttachmentSupport = (doc.getObject("XY_Plane003"), [""])
sketch9.MapMode = "FlatFace"
sketch9.AttachmentOffset = App.Placement(Vector(0, 0, 35), App.Rotation())
sketch9.addGeometry(Part.Circle(Vector(26, 12, 0), Vector(0, 0, 1), 4), False)
sketch9.addConstraint(Sketcher.Constraint("Diameter", 0, Q("8 mm")))
sketch9.addConstraint(Sketcher.Constraint("DistanceX", -1, 1, 0, 3, Q("26 mm")))
sketch9.addConstraint(Sketcher.Constraint("DistanceY", -1, 1, 0, 3, Q("12 mm")))
pocket4 = body4.newObject("PartDesign::Pocket", "Pocket003")
pocket4.Profile = sketch9
pocket4.Length = 8
pocket4.Reversed = True

doc.recompute()
